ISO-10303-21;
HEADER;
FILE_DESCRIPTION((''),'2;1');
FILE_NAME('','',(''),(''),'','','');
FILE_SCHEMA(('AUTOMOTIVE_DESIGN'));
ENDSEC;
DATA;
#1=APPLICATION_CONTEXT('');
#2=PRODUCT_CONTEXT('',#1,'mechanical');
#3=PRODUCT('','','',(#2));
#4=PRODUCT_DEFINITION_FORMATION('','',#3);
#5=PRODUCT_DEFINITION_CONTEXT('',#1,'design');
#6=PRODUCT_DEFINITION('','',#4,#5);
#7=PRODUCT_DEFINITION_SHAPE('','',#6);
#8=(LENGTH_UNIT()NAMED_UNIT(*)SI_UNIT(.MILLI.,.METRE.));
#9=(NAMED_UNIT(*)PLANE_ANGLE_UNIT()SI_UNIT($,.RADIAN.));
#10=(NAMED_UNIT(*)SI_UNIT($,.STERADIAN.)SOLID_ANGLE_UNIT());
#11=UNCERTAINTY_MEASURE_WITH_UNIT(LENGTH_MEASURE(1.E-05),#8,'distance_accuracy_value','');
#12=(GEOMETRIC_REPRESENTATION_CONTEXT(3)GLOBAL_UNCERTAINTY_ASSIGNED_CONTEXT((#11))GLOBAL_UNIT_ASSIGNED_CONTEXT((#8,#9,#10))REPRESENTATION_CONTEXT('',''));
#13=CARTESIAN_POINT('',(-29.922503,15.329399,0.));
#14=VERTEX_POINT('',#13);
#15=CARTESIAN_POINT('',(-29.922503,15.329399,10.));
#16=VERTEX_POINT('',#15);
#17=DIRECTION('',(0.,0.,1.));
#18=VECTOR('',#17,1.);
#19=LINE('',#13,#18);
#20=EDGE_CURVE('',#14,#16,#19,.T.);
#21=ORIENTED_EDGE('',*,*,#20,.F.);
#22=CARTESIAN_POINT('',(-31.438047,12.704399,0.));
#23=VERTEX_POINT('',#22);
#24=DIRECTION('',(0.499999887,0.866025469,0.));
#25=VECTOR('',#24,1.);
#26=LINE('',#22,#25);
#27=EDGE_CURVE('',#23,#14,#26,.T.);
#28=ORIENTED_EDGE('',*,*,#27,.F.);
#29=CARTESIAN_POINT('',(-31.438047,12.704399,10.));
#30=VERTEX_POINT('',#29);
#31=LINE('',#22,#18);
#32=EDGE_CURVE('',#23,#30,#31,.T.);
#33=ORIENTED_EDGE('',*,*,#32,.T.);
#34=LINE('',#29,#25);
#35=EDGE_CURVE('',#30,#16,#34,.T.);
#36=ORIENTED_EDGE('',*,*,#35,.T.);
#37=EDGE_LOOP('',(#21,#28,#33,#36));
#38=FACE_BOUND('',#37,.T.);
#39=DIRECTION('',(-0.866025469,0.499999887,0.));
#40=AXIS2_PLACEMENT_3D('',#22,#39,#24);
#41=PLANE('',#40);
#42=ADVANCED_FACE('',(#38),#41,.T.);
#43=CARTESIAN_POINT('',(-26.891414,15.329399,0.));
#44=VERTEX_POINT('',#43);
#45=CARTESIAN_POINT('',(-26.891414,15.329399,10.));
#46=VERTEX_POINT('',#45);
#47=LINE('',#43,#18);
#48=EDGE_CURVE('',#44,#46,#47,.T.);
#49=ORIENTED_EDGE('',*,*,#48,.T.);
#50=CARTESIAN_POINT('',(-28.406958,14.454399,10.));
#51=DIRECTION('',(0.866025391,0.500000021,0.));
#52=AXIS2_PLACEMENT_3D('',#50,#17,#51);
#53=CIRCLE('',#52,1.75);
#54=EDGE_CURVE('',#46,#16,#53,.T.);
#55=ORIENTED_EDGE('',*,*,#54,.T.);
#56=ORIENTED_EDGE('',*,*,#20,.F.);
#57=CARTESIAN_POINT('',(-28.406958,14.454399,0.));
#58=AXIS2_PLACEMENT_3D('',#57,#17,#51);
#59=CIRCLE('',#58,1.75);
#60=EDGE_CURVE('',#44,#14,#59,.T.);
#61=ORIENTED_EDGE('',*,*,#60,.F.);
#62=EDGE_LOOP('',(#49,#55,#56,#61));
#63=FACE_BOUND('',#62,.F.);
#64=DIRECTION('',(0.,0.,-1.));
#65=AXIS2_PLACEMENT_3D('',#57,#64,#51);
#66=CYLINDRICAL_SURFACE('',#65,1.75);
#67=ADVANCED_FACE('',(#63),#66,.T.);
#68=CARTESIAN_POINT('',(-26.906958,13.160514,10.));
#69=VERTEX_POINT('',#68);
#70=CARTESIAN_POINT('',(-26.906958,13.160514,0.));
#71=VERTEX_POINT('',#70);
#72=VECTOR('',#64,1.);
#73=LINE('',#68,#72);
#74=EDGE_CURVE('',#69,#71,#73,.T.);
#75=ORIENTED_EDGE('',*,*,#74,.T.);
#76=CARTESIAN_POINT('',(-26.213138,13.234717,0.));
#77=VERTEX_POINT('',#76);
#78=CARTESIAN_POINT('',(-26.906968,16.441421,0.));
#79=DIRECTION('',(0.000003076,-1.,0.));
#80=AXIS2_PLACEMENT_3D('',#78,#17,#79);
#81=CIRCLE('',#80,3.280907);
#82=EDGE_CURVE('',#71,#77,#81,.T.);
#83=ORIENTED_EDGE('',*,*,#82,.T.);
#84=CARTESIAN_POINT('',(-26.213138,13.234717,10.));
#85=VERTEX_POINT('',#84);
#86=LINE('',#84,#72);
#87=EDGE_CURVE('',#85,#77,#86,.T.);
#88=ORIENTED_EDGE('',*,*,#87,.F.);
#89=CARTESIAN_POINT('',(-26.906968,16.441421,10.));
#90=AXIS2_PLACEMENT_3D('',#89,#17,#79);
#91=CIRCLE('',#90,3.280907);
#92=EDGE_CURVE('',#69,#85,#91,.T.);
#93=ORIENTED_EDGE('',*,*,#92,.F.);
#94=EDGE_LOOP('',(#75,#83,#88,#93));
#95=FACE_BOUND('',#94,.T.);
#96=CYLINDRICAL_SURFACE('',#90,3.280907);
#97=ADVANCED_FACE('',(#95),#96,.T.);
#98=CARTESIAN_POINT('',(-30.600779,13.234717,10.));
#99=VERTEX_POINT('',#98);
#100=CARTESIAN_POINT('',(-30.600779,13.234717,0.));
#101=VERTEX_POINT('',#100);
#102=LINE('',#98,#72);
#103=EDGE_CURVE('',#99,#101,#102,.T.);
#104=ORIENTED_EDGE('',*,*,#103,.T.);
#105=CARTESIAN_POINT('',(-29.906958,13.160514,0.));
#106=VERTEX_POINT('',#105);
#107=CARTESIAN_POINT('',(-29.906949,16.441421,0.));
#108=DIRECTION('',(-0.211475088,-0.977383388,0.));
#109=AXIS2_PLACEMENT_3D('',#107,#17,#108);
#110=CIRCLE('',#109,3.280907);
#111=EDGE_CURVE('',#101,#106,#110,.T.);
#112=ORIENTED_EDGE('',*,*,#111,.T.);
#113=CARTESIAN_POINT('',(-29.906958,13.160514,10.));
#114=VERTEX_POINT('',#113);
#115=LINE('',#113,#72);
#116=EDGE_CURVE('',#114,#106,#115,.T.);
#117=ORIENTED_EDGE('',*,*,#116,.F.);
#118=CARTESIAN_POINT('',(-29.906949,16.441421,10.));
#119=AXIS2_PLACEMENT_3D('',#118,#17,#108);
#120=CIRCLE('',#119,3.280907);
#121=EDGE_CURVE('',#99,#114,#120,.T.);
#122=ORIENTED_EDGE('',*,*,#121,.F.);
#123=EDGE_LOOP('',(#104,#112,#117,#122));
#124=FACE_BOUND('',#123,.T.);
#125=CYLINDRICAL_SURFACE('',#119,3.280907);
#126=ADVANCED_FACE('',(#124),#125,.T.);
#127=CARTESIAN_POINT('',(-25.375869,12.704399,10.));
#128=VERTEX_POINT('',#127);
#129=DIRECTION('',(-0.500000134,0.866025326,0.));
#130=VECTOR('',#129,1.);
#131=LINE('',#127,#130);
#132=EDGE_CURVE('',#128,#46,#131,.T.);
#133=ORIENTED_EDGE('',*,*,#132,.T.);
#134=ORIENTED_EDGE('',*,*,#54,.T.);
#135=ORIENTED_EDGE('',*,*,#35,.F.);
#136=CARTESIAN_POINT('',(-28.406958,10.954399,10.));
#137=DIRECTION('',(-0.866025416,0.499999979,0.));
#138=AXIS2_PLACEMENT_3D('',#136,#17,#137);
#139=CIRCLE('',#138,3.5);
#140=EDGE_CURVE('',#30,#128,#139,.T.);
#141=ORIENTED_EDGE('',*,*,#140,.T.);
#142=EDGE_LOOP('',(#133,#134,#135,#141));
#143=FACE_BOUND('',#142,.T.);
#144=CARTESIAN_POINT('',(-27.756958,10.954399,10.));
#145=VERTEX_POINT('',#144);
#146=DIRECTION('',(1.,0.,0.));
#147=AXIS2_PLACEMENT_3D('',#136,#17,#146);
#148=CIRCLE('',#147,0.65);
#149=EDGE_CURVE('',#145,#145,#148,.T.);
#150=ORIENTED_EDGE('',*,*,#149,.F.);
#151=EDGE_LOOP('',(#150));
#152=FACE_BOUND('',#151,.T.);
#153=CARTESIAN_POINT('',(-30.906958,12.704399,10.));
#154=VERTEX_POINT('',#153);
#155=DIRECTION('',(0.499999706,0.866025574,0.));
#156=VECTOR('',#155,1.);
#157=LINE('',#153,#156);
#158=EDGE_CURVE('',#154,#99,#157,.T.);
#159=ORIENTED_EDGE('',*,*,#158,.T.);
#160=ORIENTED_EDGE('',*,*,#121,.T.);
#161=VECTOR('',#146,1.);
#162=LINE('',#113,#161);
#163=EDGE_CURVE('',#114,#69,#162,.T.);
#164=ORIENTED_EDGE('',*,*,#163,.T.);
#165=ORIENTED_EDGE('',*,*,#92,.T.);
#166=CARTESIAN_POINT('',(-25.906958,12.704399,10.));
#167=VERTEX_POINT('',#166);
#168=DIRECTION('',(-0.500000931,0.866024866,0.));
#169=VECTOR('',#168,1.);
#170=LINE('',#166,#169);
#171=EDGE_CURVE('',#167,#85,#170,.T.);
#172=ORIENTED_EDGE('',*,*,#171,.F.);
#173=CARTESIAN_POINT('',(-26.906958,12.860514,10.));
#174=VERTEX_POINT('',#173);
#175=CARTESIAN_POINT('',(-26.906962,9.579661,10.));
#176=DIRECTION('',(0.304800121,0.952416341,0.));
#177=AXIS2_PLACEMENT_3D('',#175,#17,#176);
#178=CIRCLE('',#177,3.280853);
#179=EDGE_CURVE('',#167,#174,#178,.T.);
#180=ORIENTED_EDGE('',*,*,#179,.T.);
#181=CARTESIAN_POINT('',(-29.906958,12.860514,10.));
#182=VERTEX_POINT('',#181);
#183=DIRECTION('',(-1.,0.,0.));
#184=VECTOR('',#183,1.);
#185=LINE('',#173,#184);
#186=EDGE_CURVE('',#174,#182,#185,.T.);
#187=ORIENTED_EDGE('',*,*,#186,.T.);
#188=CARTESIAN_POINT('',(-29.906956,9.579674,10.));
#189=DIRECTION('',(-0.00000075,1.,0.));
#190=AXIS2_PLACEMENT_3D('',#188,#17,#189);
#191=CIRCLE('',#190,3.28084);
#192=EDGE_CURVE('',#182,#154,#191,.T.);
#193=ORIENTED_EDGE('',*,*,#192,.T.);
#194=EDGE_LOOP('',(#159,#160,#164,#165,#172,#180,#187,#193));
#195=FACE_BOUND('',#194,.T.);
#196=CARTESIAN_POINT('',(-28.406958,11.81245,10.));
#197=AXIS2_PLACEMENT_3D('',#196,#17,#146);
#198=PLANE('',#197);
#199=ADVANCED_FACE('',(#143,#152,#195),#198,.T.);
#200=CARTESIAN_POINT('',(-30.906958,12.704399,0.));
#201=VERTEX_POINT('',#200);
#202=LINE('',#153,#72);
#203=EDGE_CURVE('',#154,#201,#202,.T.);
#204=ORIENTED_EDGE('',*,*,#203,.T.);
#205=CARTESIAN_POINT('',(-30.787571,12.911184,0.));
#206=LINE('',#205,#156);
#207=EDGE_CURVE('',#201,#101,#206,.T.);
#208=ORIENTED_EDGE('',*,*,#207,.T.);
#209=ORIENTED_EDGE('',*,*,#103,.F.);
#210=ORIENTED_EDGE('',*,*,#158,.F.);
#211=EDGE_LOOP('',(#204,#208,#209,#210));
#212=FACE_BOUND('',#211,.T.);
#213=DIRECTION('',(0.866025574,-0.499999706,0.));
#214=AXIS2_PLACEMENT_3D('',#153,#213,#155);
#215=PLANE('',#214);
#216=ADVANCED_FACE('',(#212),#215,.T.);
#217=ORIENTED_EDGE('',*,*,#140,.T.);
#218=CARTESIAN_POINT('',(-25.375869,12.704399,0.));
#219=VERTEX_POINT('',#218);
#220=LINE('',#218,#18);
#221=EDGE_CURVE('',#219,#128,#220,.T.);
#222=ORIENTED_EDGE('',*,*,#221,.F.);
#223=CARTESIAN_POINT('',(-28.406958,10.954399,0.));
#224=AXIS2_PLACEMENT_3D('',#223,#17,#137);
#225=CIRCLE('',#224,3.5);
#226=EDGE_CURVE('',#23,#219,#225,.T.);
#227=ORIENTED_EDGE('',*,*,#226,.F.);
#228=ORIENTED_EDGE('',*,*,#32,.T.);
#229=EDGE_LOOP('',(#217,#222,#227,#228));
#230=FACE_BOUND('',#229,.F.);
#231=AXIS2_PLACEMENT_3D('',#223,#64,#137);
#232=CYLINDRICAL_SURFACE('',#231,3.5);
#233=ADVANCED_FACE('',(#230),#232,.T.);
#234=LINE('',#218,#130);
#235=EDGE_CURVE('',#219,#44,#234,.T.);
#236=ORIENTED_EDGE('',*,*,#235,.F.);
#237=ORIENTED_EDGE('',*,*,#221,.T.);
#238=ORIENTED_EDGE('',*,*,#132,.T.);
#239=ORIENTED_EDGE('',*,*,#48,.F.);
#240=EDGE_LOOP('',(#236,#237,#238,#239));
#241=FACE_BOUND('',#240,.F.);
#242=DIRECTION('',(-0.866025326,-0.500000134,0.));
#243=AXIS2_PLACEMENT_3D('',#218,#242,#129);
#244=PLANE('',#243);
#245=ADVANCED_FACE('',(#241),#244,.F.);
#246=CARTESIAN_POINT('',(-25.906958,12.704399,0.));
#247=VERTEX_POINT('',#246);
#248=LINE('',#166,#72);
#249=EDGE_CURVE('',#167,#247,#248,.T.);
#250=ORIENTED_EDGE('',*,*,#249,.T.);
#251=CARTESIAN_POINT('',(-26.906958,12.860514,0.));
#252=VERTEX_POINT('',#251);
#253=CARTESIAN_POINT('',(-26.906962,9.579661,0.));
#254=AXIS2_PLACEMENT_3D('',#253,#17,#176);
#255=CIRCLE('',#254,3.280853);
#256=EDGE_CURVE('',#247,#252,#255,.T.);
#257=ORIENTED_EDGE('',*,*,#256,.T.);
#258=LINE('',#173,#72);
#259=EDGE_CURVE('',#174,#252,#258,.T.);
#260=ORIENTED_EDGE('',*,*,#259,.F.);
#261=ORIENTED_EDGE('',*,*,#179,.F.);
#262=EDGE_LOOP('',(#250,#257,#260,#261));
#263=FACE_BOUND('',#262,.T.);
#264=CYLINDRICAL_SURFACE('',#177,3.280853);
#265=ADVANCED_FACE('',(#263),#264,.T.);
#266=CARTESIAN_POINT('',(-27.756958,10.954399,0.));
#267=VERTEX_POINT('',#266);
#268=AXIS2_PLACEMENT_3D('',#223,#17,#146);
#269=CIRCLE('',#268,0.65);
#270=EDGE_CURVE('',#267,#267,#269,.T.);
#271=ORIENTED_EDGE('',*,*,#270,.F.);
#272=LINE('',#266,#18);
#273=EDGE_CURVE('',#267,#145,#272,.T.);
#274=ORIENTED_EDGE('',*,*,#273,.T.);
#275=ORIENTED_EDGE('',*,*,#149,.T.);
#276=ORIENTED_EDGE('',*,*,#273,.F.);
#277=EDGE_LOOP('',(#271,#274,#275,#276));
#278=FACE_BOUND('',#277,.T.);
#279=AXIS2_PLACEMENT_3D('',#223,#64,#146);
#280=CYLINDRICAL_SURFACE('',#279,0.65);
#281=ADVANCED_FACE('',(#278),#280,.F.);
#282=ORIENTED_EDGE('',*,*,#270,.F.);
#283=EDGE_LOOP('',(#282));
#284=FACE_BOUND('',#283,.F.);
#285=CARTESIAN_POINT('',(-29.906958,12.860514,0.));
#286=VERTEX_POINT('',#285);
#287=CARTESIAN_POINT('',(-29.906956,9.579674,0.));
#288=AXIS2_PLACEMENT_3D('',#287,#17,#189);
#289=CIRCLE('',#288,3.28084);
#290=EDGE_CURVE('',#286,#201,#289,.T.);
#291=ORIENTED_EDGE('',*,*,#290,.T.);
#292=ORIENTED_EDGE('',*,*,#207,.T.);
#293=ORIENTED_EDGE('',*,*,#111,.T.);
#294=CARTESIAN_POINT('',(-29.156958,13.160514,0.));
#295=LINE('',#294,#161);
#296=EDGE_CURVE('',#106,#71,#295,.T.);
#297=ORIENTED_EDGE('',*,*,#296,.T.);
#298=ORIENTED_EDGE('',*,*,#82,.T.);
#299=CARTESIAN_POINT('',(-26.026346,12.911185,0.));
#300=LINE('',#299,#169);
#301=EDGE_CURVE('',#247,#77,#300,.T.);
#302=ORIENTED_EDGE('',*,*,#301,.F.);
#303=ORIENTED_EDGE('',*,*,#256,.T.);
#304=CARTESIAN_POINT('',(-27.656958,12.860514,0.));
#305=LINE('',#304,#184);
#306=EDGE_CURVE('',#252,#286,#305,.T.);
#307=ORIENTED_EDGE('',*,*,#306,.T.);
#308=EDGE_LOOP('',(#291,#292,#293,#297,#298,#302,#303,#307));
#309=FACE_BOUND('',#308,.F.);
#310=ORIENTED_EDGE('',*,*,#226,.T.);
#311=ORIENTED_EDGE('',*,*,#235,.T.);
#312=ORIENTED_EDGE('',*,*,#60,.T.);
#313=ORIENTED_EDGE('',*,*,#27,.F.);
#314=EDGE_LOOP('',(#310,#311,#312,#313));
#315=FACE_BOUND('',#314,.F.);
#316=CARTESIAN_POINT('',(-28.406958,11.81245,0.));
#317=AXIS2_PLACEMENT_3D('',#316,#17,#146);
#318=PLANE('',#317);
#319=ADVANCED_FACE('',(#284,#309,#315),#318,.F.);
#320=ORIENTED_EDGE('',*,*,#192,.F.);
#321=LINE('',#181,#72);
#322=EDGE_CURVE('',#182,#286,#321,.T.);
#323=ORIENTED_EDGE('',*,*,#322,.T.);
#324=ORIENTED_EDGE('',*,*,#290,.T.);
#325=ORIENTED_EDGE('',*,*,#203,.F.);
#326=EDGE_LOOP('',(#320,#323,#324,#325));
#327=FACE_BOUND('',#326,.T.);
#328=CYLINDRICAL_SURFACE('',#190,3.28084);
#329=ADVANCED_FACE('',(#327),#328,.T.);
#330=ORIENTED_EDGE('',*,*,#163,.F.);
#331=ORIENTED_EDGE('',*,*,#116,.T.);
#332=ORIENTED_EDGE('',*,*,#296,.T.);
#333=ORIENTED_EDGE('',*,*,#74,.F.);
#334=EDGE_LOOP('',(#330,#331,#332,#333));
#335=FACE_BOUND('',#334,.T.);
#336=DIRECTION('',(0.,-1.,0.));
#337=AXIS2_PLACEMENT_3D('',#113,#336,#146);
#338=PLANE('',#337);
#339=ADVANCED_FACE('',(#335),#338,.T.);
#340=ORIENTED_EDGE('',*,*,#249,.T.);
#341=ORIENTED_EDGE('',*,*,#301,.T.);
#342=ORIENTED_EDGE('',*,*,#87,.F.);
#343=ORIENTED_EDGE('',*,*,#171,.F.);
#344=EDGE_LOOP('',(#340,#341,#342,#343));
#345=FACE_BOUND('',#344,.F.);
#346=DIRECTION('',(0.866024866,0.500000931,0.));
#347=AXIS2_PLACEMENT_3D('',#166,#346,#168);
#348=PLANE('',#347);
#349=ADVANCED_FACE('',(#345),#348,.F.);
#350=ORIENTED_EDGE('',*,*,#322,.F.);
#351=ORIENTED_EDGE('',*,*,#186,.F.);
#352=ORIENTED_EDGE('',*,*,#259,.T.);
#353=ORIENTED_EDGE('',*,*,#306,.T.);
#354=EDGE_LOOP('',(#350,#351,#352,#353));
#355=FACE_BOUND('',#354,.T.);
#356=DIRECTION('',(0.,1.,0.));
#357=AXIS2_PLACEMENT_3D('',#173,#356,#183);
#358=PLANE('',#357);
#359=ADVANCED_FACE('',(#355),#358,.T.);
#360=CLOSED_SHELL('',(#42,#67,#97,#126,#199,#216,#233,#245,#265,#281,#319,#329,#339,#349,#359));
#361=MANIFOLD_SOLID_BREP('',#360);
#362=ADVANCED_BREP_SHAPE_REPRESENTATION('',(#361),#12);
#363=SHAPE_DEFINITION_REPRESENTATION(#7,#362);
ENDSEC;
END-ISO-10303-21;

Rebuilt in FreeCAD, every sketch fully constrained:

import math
import FreeCAD as App
import Part
import Sketcher
Q = App.Units.Quantity

doc = App.newDocument("Part")
body = doc.addObject("PartDesign::Body", "Body")

sketch1 = doc.addObject("Sketcher::SketchObject", "Sketch")
body.addObject(sketch1)
sketch1.AttachmentSupport = (doc.XY_Plane, [""])
sketch1.MapMode = "FlatFace"
sketch1.addGeometry(Part.ArcOfCircle(Part.Circle(App.Vector(-28.4, 11, 0), App.Vector(0, 0, 1), 3.5), math.radians(150), math.radians(390)), False)
sketch1.addGeometry(Part.LineSegment(App.Vector(-25.4, 12.7, 0), App.Vector(-26.9, 15.3, 0)), False)
sketch1.addGeometry(Part.ArcOfCircle(Part.Circle(App.Vector(-28.4, 14.5, 0), App.Vector(0, 0, 1), 1.8), math.radians(30), math.radians(150)), False)
sketch1.addGeometry(Part.LineSegment(App.Vector(-29.9, 15.3, 0), App.Vector(-31.4, 12.7, 0)), False)
sketch1.addGeometry(Part.Circle(App.Vector(-28.4, 11, 0), App.Vector(0, 0, 1), 0.7), False)
sketch1.addConstraint(Sketcher.Constraint("Tangent", 0, 2, 1, 1))
sketch1.addConstraint(Sketcher.Constraint("Tangent", 1, 2, 2, 1))
sketch1.addConstraint(Sketcher.Constraint("Tangent", 2, 2, 3, 1))
sketch1.addConstraint(Sketcher.Constraint("Tangent", 3, 2, 0, 1))
sketch1.addConstraint(Sketcher.Constraint("Coincident", 4, 3, 0, 3))
sketch1.addConstraint(Sketcher.Constraint("Horizontal", 1, 2, 2, 2))
sketch1.addConstraint(Sketcher.Constraint("Diameter", 4, Q("1.3 mm")))
sketch1.addConstraint(Sketcher.Constraint("Radius", 0, Q("3.5 mm")))
sketch1.addConstraint(Sketcher.Constraint("Angle", 1, Q("120.000009 deg")))
sketch1.addConstraint(Sketcher.Constraint("Radius", 2, Q("1.75 mm")))
sketch1.addConstraint(Sketcher.Constraint("DistanceY", -1, 1, 0, 3, Q("10.954399 mm")))
sketch1.addConstraint(Sketcher.Constraint("DistanceX", 2, 3, -1, 1, Q("28.406958 mm")))
pad1 = doc.addObject("PartDesign::Pad", "Pad")
body.addObject(pad1)
pad1.Profile = sketch1
pad1.Length = 10

sketch2 = doc.addObject("Sketcher::SketchObject", "Sketch001")
body.addObject(sketch2)
sketch2.AttachmentSupport = (doc.XY_Plane, [""])
sketch2.MapMode = "FlatFace"
sketch2.AttachmentOffset = App.Placement(App.Vector(0, 0, 10), App.Rotation())
sketch2.addGeometry(Part.ArcOfCircle(Part.Circle(App.Vector(-29.9, 16.4, 0), App.Vector(0, 0, 1), 3.3), math.radians(-102.21), math.radians(-90)), False)
sketch2.addGeometry(Part.LineSegment(App.Vector(-30.6, 13.2, 0), App.Vector(-30.9, 12.7, 0)), False)
sketch2.addGeometry(Part.ArcOfCircle(Part.Circle(App.Vector(-29.9, 9.6, 0), App.Vector(0, 0, 1), 3.3), math.radians(90), math.radians(107.75)), False)
sketch2.addGeometry(Part.LineSegment(App.Vector(-29.9, 12.9, 0), App.Vector(-26.9, 12.9, 0)), False)
sketch2.addGeometry(Part.ArcOfCircle(Part.Circle(App.Vector(-26.9, 9.6, 0), App.Vector(0, 0, 1), 3.3), math.radians(72.25), math.radians(90)), False)
sketch2.addGeometry(Part.LineSegment(App.Vector(-25.9, 12.7, 0), App.Vector(-26.2, 13.2, 0)), False)
sketch2.addGeometry(Part.ArcOfCircle(Part.Circle(App.Vector(-26.9, 16.4, 0), App.Vector(0, 0, 1), 3.3), math.radians(-90), math.radians(-77.79)), False)
sketch2.addGeometry(Part.LineSegment(App.Vector(-26.9, 13.2, 0), App.Vector(-29.9, 13.2, 0)), False)
sketch2.addConstraint(Sketcher.Constraint("Coincident", 0, 1, 1, 1))
sketch2.addConstraint(Sketcher.Constraint("Coincident", 1, 2, 2, 2))
sketch2.addConstraint(Sketcher.Constraint("Tangent", 2, 1, 3, 1))
sketch2.addConstraint(Sketcher.Constraint("Tangent", 3, 2, 4, 2))
sketch2.addConstraint(Sketcher.Constraint("Coincident", 4, 1, 5, 1))
sketch2.addConstraint(Sketcher.Constraint("Coincident", 5, 2, 6, 2))
sketch2.addConstraint(Sketcher.Constraint("Coincident", 6, 1, 7, 1))
sketch2.addConstraint(Sketcher.Constraint("Coincident", 7, 2, 0, 2))
sketch2.addConstraint(Sketcher.Constraint("Horizontal", 3))
sketch2.addConstraint(Sketcher.Constraint("Horizontal", 7))
sketch2.addConstraint(Sketcher.Constraint("Equal", 0, 6))
sketch2.addConstraint(Sketcher.Constraint("Horizontal", 1, 2, 4, 1))
sketch2.addConstraint(Sketcher.Constraint("Horizontal", 0, 1, 5, 2))
sketch2.addConstraint(Sketcher.Constraint("Vertical", 3, 2, 6, 1))
sketch2.addConstraint(Sketcher.Constraint("Vertical", 2, 1, 7, 2))
sketch2.addConstraint(Sketcher.Constraint("Equal", 1, 5))
sketch2.addConstraint(Sketcher.Constraint("DistanceX", 3, 1, 3, 2, Q("3 mm")))
sketch2.addConstraint(Sketcher.Constraint("Angle", 1, Q("-119.999981 deg")))
sketch2.addConstraint(Sketcher.Constraint("DistanceX", 1, 2, 2, 1, Q("1 mm")))
sketch2.addConstraint(Sketcher.Constraint("DistanceX", 3, 2, 4, 1, Q("1 mm")))
sketch2.addConstraint(Sketcher.Constraint("DistanceY", 3, 2, 6, 1, Q("0.3 mm")))
sketch2.addConstraint(Sketcher.Constraint("Radius", 2, Q("3.28084 mm")))
sketch2.addConstraint(Sketcher.Constraint("Radius", 0, Q("3.280907 mm")))
sketch2.addConstraint(Sketcher.Constraint("DistanceY", -1, 1, 1, 2, Q("12.704399 mm")))
sketch2.addConstraint(Sketcher.Constraint("Distance", 1, Q("0.612358 mm")))
sketch2.addConstraint(Sketcher.Constraint("DistanceX", 0, 3, -1, 1, Q("29.906949 mm")))
pocket1 = doc.addObject("PartDesign::Pocket", "Pocket")
body.addObject(pocket1)
pocket1.Profile = sketch2
pocket1.Type = "ThroughAll"

doc.recompute()
